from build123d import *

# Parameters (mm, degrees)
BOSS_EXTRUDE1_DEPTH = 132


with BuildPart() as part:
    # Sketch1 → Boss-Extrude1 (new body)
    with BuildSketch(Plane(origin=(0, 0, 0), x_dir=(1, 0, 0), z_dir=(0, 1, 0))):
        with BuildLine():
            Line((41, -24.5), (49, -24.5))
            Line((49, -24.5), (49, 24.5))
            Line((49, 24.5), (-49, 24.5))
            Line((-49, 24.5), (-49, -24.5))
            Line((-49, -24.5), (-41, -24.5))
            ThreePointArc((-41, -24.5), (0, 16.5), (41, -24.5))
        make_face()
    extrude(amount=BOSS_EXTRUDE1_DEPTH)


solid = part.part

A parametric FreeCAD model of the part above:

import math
import FreeCAD as App
import Part
import Sketcher
from FreeCAD import Vector

doc = App.newDocument("Part")
body = doc.addObject("PartDesign::Body", "Body")

# Sketch on XZ plane
sketch1 = doc.addObject("Sketcher::SketchObject", "Sketch")
body.addObject(sketch1)
sketch1.AttachmentSupport = (doc.XZ_Plane, [""])
sketch1.MapMode = "FlatFace"
sketch1.addGeometry([
    Part.LineSegment(Vector(41, 24.5, 0), Vector(49, 24.5, 0)),  # 0
    Part.LineSegment(Vector(49, 24.5, 0), Vector(49, -24.5, 0)),  # 1
    Part.LineSegment(Vector(49, -24.5, 0), Vector(-49, -24.5, 0)),  # 2
    Part.LineSegment(Vector(-49, -24.5, 0), Vector(-49, 24.5, 0)),  # 3
    Part.LineSegment(Vector(-49, 24.5, 0), Vector(-41, 24.5, 0)),  # 4
    Part.ArcOfCircle(Part.Circle(Vector(0, 24.5, 0), Vector(0, 0, 1), 41), math.radians(180), math.radians(360)),  # 5
], False)
sketch1.addConstraint([
    Sketcher.Constraint("Coincident", 0, 2, 1, 1),
    Sketcher.Constraint("Coincident", 1, 2, 2, 1),
    Sketcher.Constraint("Coincident", 2, 2, 3, 1),
    Sketcher.Constraint("Coincident", 3, 2, 4, 1),
    Sketcher.Constraint("Coincident", 4, 2, 5, 1),
    Sketcher.Constraint("Coincident", 5, 2, 0, 1),
    Sketcher.Constraint("Horizontal", 0),
    Sketcher.Constraint("Vertical", 1),
    Sketcher.Constraint("Horizontal", 2),
    Sketcher.Constraint("Vertical", 3),
    Sketcher.Constraint("Horizontal", 4),
    Sketcher.Constraint("Symmetric", 0, 2, 2, 2, -1, 1),
    Sketcher.Constraint("Symmetric", 4, 2, 5, 2, -2),
    Sketcher.Constraint("Horizontal", 5, 3, 0, 2),
    Sketcher.Constraint("Radius", 5, 41.0),
    Sketcher.Constraint("DistanceX", 0, 1, 0, 2, 8.0),
    Sketcher.Constraint("DistanceY", 1, 2, 1, 1, 49.0),
])
pad1 = doc.addObject("PartDesign::Pad", "Pad")
body.addObject(pad1)
pad1.Profile = sketch1
pad1.Length = 132
pad1.Reversed = True

doc.recompute()
